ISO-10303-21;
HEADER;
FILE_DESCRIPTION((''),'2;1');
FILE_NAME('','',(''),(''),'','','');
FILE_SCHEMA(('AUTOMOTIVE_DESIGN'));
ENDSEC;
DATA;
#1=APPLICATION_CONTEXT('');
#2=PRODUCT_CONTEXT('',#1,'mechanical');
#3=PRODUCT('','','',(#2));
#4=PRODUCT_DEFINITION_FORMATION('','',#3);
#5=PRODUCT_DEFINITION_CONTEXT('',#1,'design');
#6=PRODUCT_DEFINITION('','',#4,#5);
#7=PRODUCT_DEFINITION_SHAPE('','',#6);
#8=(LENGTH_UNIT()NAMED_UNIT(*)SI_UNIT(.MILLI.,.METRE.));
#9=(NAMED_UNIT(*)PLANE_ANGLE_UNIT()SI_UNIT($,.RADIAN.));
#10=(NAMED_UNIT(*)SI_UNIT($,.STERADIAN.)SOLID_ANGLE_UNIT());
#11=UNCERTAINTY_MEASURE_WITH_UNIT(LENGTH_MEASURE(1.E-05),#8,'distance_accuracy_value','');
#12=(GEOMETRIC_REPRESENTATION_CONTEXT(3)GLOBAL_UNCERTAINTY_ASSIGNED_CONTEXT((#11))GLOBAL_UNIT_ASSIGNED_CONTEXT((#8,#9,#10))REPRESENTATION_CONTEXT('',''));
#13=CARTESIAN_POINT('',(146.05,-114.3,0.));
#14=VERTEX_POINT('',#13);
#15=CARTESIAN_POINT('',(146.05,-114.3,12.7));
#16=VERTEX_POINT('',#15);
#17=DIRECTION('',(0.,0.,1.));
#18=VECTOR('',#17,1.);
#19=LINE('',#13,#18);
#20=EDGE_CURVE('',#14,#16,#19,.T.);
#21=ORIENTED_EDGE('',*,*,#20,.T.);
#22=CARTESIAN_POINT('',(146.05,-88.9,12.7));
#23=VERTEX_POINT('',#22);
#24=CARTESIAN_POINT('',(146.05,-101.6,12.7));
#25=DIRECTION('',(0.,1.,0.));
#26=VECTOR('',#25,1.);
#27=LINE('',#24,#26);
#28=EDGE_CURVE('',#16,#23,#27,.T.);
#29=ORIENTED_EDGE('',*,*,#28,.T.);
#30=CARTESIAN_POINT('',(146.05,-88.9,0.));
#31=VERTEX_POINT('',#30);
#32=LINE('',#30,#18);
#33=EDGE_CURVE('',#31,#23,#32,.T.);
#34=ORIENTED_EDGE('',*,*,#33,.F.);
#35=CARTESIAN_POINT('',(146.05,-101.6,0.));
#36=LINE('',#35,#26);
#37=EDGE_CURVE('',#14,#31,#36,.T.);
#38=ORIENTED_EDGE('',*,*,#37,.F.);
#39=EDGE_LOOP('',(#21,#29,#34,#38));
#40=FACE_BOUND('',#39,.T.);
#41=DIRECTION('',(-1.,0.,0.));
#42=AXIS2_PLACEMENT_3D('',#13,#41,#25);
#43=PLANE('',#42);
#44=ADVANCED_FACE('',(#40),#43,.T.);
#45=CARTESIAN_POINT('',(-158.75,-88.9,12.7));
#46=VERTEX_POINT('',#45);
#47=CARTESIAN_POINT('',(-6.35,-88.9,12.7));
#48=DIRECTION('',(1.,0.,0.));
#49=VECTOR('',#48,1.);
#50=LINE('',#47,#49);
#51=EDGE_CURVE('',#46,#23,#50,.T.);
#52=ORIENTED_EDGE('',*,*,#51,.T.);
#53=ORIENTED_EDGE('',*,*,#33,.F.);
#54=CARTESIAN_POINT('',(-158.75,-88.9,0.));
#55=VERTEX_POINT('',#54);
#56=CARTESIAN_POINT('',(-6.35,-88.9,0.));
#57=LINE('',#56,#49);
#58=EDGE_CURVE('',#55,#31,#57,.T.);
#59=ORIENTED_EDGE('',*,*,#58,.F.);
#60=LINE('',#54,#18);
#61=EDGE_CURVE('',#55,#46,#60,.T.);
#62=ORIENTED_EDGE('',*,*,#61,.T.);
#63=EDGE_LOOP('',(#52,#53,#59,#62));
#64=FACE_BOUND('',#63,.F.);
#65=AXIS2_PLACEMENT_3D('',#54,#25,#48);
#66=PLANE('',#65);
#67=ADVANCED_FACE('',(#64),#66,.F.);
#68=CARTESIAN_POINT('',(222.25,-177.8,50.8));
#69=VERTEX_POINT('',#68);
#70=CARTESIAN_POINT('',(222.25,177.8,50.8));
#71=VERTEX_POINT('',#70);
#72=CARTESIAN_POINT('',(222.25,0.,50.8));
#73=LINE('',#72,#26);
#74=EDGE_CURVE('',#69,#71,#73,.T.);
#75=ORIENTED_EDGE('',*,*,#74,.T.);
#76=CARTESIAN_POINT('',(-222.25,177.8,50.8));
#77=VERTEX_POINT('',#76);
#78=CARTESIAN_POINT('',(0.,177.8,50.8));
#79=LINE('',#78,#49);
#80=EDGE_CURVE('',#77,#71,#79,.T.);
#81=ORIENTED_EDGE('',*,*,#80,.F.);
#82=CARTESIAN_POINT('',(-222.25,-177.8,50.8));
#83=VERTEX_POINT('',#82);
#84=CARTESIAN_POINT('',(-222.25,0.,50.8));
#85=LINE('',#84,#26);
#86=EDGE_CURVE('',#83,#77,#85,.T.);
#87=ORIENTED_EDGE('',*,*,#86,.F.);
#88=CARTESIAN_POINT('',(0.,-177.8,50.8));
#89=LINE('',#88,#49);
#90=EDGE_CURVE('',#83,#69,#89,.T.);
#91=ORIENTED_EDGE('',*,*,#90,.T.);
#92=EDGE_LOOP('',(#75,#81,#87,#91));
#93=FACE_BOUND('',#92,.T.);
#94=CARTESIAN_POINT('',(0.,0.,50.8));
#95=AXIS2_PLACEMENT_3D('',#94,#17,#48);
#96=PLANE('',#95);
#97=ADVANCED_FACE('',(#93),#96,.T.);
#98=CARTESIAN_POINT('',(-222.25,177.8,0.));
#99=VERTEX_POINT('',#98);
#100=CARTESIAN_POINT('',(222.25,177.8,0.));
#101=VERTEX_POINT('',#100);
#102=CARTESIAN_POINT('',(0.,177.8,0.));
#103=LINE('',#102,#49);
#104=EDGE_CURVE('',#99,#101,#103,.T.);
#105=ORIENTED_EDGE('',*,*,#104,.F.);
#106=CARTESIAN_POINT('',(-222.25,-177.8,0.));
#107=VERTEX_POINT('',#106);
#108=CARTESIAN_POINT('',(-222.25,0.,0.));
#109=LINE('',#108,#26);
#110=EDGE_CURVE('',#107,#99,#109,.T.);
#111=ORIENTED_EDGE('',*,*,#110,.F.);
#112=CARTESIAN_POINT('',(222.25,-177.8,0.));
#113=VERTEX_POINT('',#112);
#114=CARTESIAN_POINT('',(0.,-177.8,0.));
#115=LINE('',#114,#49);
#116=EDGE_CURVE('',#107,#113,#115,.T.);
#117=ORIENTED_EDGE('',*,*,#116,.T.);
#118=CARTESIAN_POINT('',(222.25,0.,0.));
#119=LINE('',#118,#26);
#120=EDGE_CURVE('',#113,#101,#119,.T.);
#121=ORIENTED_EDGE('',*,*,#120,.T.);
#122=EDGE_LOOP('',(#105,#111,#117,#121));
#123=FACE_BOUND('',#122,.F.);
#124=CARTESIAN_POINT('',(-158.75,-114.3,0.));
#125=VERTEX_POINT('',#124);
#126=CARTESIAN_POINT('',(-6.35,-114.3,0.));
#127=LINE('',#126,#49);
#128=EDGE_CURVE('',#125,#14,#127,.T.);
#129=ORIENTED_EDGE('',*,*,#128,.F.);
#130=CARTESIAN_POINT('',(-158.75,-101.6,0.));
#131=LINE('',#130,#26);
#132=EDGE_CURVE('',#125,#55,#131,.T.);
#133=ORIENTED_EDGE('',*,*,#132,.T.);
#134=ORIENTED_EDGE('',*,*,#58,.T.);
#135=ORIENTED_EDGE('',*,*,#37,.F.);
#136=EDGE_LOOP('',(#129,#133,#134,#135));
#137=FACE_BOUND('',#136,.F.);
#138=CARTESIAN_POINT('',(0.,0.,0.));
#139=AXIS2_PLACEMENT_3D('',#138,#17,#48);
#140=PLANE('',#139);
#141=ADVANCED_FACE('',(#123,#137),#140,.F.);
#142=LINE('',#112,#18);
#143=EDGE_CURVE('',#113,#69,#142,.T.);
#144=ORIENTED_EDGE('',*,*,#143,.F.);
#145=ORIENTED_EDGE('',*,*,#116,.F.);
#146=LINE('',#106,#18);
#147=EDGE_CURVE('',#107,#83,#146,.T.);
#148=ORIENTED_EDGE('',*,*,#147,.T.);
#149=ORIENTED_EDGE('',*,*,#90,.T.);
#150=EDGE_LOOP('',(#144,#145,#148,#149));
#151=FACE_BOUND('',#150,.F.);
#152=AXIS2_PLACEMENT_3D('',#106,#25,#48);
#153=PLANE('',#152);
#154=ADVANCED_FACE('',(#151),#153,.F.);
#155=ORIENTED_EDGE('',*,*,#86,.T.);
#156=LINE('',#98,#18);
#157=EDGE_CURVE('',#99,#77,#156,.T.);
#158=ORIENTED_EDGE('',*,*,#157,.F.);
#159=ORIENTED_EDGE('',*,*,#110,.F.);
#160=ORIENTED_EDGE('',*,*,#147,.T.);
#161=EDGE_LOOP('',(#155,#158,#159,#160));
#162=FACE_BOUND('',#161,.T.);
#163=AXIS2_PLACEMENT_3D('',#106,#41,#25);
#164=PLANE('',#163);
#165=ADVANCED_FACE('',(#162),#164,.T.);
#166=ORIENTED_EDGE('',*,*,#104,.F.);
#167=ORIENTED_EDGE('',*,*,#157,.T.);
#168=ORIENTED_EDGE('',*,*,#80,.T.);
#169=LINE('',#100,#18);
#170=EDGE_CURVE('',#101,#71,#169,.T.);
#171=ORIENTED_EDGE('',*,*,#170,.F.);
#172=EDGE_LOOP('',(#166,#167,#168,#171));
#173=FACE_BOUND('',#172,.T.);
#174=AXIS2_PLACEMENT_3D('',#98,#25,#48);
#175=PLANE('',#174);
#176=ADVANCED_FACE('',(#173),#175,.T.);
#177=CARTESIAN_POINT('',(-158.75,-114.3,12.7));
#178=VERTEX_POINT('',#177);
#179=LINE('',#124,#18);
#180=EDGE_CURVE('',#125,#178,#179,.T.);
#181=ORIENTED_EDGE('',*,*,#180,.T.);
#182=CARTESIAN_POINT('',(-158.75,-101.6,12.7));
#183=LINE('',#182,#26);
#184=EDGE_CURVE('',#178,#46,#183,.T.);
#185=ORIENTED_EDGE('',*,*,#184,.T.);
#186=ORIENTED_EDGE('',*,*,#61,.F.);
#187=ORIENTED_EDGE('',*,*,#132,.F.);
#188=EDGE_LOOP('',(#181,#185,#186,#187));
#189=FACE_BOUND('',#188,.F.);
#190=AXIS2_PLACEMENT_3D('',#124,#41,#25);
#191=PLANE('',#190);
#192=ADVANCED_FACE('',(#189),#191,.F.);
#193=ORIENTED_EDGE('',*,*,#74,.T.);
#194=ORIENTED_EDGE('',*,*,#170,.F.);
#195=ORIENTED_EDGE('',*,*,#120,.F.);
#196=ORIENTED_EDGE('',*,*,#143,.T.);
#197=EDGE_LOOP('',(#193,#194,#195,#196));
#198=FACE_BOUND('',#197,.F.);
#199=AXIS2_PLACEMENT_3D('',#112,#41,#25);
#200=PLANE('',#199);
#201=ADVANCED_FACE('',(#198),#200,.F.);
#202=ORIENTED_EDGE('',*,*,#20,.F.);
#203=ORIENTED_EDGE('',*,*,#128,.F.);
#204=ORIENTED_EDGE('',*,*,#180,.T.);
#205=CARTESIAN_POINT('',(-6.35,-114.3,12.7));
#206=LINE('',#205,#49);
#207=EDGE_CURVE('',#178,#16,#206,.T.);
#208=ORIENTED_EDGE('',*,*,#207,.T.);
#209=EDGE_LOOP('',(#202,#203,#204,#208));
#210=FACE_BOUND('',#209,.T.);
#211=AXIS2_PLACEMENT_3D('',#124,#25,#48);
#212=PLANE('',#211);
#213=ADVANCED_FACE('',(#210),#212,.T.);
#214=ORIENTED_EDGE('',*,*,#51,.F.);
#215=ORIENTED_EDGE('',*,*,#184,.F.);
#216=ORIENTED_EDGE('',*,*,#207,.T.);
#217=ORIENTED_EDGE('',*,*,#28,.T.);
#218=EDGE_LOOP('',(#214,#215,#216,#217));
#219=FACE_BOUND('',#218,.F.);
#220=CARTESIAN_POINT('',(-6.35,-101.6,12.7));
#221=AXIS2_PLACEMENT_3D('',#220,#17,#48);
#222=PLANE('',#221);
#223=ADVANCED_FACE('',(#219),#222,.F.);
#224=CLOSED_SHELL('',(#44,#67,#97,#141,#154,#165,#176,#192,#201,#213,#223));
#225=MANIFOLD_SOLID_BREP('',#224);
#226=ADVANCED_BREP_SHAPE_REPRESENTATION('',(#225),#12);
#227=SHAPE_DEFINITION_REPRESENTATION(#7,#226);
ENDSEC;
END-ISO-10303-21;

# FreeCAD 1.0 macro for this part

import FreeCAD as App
import Part
import Sketcher
Q = App.Units.Quantity

doc = App.newDocument("Part")
params = doc.addObject("Spreadsheet::Sheet", "Params")
for row, (alias, value) in enumerate([
    ("sketch1_height", "14 in"),
    ("sketch1_width", "17.5 in"),
    ("pad1_length", "2 in"),
    ("sketch2_width", "12 in"),
    ("sketch2_height", "1 in"),
    ("pocket1_length", "0.5 in"),
], start=1):
    params.set(f"A{row}", alias)
    params.set(f"B{row}", "=" + value)
    params.setAlias(f"B{row}", alias)

body = doc.addObject("PartDesign::Body", "Body")

sketch1 = body.newObject("Sketcher::SketchObject", "Sketch")
sketch1.AttachmentSupport = (doc.getObject("XY_Plane"), [""])
sketch1.MapMode = "FlatFace"
sketch1.addGeometry(Part.LineSegment(App.Vector(-222, 178, 0), App.Vector(-222, -178, 0)), False)
sketch1.addGeometry(Part.LineSegment(App.Vector(-222, -178, 0), App.Vector(222, -178, 0)), False)
sketch1.addGeometry(Part.LineSegment(App.Vector(222, -178, 0), App.Vector(222, 178, 0)), False)
sketch1.addGeometry(Part.LineSegment(App.Vector(222, 178, 0), App.Vector(-222, 178, 0)), False)
sketch1.addConstraint(Sketcher.Constraint("Coincident", 0, 2, 1, 1))
sketch1.addConstraint(Sketcher.Constraint("Coincident", 1, 2, 2, 1))
sketch1.addConstraint(Sketcher.Constraint("Coincident", 2, 2, 3, 1))
sketch1.addConstraint(Sketcher.Constraint("Coincident", 3, 2, 0, 1))
sketch1.addConstraint(Sketcher.Constraint("Vertical", 0))
sketch1.addConstraint(Sketcher.Constraint("Horizontal", 1))
sketch1.addConstraint(Sketcher.Constraint("Vertical", 2))
sketch1.addConstraint(Sketcher.Constraint("Horizontal", 3))
sketch1.addConstraint(Sketcher.Constraint("Symmetric", 0, 2, 2, 2, -1, 1))
sketch1.addConstraint(Sketcher.Constraint("DistanceY", 0, 2, 0, 1, Q("14 in")))
sketch1.addConstraint(Sketcher.Constraint("DistanceX", 1, 1, 1, 2, Q("17.5 in")))
sketch1.setExpression("Constraints[9]", "Params.sketch1_height")
sketch1.setExpression("Constraints[10]", "Params.sketch1_width")
pad1 = body.newObject("PartDesign::Pad", "Pad")
pad1.Profile = sketch1
pad1.setExpression("Length", "Params.pad1_length")

sketch2 = body.newObject("Sketcher::SketchObject", "Sketch001")
sketch2.AttachmentSupport = (doc.getObject("XY_Plane"), [""])
sketch2.MapMode = "FlatFace"
sketch2.addGeometry(Part.LineSegment(App.Vector(-159, -89, 0), App.Vector(-159, -114, 0)), False)
sketch2.addGeometry(Part.LineSegment(App.Vector(-159, -114, 0), App.Vector(146, -114, 0)), False)
sketch2.addGeometry(Part.LineSegment(App.Vector(146, -114, 0), App.Vector(146, -89, 0)), False)
sketch2.addGeometry(Part.LineSegment(App.Vector(146, -89, 0), App.Vector(-159, -89, 0)), False)
sketch2.addConstraint(Sketcher.Constraint("Coincident", 0, 2, 1, 1))
sketch2.addConstraint(Sketcher.Constraint("Coincident", 1, 2, 2, 1))
sketch2.addConstraint(Sketcher.Constraint("Coincident", 2, 2, 3, 1))
sketch2.addConstraint(Sketcher.Constraint("Coincident", 3, 2, 0, 1))
sketch2.addConstraint(Sketcher.Constraint("Vertical", 0))
sketch2.addConstraint(Sketcher.Constraint("Horizontal", 1))
sketch2.addConstraint(Sketcher.Constraint("Vertical", 2))
sketch2.addConstraint(Sketcher.Constraint("Horizontal", 3))
sketch2.addConstraint(Sketcher.Constraint("DistanceX", 1, 1, 1, 2, Q("12 in")))
sketch2.addConstraint(Sketcher.Constraint("DistanceY", 0, 2, 0, 1, Q("1 in")))
sketch2.addConstraint(Sketcher.Constraint("DistanceY", 0, 2, -1, 1, Q("4.5 in")))
sketch2.addConstraint(Sketcher.Constraint("DistanceX", 0, 2, -1, 1, Q("6.25 in")))
sketch2.setExpression("Constraints[8]", "Params.sketch2_width")
sketch2.setExpression("Constraints[9]", "Params.sketch2_height")
pocket1 = body.newObject("PartDesign::Pocket", "Pocket")
pocket1.Profile = sketch2
pocket1.setExpression("Length", "Params.pocket1_length")
pocket1.Reversed = True

doc.recompute()
